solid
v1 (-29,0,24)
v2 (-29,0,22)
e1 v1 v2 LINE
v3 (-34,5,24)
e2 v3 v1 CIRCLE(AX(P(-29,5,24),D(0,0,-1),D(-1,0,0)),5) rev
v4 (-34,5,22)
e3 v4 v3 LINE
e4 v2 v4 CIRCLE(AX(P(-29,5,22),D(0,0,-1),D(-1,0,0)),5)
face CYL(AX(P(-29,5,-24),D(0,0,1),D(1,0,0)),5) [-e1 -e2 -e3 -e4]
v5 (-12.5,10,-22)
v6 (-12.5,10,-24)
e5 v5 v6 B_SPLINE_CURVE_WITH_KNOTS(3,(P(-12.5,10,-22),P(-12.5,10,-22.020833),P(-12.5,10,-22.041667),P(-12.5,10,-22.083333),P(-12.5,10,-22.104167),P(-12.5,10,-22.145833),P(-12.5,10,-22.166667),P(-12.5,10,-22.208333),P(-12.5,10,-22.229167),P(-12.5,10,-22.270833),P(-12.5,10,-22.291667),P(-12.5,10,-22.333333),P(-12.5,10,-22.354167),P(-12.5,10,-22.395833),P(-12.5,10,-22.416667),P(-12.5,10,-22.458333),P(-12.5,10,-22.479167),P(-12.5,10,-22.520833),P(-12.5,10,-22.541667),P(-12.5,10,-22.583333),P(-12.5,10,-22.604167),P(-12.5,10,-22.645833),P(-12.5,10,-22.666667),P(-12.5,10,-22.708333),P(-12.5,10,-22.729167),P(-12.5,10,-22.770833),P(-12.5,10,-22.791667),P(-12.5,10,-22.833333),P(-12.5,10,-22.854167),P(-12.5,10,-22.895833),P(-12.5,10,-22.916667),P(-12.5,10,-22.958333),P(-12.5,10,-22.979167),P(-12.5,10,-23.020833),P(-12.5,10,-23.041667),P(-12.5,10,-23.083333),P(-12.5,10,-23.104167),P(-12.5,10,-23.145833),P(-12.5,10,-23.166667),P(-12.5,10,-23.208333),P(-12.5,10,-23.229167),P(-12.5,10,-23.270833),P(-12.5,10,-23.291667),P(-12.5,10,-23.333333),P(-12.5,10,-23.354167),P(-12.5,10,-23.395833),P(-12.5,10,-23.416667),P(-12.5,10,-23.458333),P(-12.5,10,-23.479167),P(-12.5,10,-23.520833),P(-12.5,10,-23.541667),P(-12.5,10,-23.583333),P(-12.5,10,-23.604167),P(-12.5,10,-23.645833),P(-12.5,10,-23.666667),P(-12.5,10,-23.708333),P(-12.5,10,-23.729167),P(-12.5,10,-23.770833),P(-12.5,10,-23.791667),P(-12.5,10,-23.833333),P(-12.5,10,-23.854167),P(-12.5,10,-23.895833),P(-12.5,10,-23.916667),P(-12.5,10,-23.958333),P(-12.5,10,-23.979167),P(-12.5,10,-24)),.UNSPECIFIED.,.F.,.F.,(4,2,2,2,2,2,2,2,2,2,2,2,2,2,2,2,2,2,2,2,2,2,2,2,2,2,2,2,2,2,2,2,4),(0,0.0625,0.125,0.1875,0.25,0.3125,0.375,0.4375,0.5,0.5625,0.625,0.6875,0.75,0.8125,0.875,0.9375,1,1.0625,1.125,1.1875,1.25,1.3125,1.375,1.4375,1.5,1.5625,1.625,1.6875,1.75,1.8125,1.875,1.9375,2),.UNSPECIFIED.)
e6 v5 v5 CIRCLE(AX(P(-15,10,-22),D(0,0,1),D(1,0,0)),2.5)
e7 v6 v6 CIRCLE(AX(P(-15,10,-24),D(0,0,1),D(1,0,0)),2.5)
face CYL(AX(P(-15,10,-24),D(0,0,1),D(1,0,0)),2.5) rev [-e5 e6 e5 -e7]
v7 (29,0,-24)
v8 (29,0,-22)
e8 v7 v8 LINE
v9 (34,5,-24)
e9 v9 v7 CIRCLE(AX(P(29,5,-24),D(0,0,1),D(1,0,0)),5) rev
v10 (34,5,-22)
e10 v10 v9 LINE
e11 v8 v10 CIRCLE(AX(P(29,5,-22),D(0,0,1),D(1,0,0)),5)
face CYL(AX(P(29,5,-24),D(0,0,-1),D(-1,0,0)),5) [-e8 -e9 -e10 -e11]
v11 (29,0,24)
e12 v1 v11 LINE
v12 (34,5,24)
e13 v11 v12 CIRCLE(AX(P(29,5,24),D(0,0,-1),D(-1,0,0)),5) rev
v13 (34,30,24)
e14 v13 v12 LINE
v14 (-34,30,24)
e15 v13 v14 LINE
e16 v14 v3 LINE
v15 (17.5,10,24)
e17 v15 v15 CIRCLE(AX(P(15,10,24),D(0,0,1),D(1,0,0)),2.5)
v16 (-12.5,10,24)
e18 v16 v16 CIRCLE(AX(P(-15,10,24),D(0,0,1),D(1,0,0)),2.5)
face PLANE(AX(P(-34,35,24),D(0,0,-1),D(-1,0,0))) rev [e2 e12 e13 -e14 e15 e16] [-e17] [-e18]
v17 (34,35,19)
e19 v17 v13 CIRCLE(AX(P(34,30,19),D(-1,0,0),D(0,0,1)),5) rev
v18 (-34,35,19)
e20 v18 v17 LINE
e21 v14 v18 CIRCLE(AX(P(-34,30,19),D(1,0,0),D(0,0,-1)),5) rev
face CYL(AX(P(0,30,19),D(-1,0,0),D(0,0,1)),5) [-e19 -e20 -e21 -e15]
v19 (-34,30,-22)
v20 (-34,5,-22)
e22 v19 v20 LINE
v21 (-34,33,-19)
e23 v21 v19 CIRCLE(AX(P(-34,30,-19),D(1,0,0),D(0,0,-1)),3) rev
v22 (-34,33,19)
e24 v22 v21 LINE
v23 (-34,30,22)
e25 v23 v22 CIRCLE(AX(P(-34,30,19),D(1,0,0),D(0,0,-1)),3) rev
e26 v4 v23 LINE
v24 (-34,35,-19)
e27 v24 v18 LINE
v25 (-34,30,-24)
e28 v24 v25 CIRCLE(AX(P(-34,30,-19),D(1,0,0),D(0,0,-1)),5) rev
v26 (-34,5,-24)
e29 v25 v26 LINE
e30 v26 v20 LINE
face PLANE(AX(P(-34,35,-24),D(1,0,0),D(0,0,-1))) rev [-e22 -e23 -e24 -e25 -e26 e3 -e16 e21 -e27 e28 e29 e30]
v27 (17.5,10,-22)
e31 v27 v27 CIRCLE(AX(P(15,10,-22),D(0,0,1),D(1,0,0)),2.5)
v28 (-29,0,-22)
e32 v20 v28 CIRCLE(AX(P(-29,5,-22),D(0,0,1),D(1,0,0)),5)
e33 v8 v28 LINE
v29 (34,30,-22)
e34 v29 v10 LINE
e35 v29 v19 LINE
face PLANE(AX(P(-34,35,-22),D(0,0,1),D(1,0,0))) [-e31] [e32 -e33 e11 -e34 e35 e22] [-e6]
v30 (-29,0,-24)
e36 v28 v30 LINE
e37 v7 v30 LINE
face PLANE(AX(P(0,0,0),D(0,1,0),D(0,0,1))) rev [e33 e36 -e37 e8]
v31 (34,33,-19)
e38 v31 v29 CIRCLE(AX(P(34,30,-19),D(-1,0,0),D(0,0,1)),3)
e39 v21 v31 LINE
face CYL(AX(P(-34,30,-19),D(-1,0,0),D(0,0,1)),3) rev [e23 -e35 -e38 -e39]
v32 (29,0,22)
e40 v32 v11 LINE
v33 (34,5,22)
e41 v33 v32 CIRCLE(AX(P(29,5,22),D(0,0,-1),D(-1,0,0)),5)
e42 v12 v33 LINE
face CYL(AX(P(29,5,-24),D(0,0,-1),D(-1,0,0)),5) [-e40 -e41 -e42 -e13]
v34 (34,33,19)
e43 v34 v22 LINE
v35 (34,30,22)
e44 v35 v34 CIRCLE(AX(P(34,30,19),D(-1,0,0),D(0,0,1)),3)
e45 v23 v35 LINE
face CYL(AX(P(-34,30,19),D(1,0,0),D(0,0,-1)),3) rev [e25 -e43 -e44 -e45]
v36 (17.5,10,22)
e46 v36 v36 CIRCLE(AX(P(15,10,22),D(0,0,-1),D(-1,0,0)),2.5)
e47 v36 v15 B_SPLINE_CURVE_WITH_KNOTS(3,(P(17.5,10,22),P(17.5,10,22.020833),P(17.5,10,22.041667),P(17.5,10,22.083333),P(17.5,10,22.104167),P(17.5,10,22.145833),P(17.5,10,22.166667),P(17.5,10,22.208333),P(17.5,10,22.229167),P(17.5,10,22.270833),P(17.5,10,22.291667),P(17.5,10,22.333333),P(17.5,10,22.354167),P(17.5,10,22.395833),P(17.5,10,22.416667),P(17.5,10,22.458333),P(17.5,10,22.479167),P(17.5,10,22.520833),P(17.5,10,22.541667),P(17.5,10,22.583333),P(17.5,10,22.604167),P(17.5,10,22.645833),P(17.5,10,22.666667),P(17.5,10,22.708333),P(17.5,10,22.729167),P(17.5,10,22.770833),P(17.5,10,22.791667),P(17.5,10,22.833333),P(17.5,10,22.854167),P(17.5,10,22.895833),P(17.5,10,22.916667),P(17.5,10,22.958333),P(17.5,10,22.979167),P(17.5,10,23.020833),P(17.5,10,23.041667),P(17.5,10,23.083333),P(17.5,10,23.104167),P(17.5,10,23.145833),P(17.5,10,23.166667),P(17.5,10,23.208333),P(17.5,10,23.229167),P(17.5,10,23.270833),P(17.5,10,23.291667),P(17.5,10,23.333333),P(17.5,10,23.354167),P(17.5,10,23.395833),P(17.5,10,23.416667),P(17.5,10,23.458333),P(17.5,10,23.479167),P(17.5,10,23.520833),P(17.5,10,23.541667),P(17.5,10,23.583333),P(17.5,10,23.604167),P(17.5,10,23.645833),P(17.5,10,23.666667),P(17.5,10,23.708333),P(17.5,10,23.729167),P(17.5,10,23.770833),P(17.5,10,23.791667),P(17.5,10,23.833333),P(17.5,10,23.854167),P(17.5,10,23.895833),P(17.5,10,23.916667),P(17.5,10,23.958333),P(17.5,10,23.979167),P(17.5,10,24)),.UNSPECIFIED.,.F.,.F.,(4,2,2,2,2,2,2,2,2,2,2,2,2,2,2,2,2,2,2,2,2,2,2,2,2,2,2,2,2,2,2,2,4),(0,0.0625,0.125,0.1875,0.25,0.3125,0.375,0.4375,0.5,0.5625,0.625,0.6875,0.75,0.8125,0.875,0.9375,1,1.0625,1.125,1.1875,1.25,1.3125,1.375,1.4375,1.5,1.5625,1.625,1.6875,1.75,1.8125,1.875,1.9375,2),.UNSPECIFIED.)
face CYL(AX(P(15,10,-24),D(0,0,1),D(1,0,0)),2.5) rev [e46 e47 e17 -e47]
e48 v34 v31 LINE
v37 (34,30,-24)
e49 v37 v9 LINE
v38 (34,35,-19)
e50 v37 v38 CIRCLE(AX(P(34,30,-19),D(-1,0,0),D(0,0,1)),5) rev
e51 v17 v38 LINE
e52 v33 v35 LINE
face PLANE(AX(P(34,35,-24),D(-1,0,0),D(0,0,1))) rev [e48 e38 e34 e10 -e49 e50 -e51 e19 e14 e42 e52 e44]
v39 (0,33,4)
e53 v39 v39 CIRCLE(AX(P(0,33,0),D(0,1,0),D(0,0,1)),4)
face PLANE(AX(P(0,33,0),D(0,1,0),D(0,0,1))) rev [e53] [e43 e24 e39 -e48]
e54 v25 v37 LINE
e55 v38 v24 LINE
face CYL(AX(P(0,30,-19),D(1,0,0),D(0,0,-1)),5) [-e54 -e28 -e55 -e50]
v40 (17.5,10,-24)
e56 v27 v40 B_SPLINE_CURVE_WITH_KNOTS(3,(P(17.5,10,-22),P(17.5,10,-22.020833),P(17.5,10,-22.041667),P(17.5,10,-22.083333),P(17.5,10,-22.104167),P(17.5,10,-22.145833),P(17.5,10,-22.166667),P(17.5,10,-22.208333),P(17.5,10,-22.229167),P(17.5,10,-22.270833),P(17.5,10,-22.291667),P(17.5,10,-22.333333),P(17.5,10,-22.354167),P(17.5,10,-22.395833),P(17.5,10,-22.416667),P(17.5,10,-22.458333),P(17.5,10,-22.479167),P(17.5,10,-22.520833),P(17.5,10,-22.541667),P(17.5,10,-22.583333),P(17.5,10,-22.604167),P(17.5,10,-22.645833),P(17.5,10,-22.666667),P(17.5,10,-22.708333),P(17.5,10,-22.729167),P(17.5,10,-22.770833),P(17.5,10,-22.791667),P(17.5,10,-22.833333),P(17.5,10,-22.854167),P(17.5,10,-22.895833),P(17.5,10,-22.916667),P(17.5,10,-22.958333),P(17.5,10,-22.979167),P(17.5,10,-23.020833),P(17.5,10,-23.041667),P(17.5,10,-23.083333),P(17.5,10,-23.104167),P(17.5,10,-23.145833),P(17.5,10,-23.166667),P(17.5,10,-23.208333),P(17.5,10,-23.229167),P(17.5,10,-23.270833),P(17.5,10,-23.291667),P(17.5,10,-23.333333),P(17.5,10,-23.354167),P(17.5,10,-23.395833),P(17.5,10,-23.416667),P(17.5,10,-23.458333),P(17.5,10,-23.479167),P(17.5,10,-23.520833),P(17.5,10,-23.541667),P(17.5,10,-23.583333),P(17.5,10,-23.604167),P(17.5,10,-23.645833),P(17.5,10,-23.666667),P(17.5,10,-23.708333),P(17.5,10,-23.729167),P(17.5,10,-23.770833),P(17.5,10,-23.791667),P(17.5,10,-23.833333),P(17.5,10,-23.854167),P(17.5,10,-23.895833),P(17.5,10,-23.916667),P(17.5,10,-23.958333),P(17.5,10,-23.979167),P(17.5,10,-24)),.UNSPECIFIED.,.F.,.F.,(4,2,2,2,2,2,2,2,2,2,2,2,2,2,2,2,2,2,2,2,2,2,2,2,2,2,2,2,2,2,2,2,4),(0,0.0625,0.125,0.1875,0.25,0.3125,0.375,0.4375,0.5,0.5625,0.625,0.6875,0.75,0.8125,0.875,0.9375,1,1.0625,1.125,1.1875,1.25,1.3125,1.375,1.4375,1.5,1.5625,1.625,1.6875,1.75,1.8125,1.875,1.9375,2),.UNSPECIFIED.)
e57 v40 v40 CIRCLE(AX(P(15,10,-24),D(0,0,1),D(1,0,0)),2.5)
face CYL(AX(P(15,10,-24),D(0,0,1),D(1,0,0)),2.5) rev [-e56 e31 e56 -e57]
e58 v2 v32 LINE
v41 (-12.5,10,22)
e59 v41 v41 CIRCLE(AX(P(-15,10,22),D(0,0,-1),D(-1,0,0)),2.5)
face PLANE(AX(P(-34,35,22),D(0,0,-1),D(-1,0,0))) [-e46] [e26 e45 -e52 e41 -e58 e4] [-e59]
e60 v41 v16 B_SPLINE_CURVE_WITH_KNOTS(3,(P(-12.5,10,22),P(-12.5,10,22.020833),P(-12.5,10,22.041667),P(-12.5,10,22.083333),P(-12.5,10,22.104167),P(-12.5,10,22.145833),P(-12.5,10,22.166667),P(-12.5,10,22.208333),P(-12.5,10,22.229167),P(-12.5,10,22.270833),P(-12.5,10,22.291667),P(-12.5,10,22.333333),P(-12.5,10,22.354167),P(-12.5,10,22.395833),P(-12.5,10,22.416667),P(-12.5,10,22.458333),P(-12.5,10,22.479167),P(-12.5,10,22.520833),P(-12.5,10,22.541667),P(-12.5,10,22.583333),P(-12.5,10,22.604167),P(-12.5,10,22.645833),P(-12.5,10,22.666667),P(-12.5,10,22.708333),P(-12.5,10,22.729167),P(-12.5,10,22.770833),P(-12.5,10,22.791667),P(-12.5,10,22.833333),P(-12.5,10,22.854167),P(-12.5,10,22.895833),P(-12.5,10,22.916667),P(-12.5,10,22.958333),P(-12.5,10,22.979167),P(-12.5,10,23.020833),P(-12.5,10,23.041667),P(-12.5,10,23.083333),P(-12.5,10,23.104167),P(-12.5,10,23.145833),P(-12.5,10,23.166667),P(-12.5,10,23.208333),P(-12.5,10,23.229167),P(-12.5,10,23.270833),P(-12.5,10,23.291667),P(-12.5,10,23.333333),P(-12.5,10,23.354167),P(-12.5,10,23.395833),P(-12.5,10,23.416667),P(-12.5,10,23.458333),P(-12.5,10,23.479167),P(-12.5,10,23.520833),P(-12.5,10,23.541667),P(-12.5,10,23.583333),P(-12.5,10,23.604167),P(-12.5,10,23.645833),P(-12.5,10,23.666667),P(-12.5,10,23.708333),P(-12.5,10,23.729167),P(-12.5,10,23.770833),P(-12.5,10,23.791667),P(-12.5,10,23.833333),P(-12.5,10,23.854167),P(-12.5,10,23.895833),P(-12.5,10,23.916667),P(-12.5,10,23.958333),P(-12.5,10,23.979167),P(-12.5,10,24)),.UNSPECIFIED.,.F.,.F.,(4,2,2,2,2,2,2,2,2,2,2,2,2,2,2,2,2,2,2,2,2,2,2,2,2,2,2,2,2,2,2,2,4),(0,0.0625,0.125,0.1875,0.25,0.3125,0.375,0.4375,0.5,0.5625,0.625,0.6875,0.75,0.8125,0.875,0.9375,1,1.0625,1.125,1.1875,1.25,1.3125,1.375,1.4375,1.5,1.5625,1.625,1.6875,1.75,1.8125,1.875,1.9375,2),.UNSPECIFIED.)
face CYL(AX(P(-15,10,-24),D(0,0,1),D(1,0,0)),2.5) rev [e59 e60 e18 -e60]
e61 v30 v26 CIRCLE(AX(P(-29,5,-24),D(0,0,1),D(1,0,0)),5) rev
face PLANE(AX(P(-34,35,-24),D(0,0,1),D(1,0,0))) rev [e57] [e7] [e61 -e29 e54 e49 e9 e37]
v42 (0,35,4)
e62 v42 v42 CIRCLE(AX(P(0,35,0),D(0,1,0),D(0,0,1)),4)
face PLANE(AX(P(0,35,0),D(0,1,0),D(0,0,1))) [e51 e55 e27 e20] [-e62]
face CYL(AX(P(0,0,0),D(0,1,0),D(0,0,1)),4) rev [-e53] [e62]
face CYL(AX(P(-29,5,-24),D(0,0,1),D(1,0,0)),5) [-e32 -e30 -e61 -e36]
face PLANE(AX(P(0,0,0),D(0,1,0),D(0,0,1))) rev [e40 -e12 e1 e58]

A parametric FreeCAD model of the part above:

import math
import FreeCAD as App
import Part
import Sketcher

V = App.Vector


def edges_at(feature, points):
    """Names of the edges that pass closest to the given points."""
    edges = feature.Shape.Edges
    near = lambda p: min(range(len(edges)), key=lambda i: edges[i].distToShape(Part.Vertex(*p))[0])
    return sorted({f"Edge{near(p) + 1}" for p in points})


def faces_at(feature, points):
    """Names of the faces that lie closest to the given points."""
    faces = feature.Shape.Faces
    near = lambda p: min(range(len(faces)), key=lambda i: faces[i].distToShape(Part.Vertex(*p))[0])
    return sorted({f"Face{near(p) + 1}" for p in points})

doc = App.newDocument("Part")
body = doc.addObject("PartDesign::Body", "Body")

sketch1 = body.newObject("Sketcher::SketchObject", "Sketch")
sketch1.AttachmentSupport = (doc.getObject("XZ_Plane"), [""])
sketch1.MapMode = "FlatFace"
sketch1.addGeometry(Part.LineSegment(V(-34, -24, 0), V(-34, 24, 0)), False)
sketch1.addGeometry(Part.LineSegment(V(-34, 24, 0), V(34, 24, 0)), False)
sketch1.addGeometry(Part.LineSegment(V(34, 24, 0), V(34, -24, 0)), False)
sketch1.addGeometry(Part.LineSegment(V(34, -24, 0), V(-34, -24, 0)), False)
sketch1.addConstraint(Sketcher.Constraint("Coincident", 0, 2, 1, 1))
sketch1.addConstraint(Sketcher.Constraint("Coincident", 1, 2, 2, 1))
sketch1.addConstraint(Sketcher.Constraint("Coincident", 2, 2, 3, 1))
sketch1.addConstraint(Sketcher.Constraint("Coincident", 3, 2, 0, 1))
sketch1.addConstraint(Sketcher.Constraint("Vertical", 0))
sketch1.addConstraint(Sketcher.Constraint("Horizontal", 1))
sketch1.addConstraint(Sketcher.Constraint("Vertical", 2))
sketch1.addConstraint(Sketcher.Constraint("Horizontal", 3))
sketch1.addConstraint(Sketcher.Constraint("Symmetric", 0, 2, 2, 2, -1, 1))
sketch1.addConstraint(Sketcher.Constraint("DistanceX", 1, 1, 1, 2, 68.0))
sketch1.addConstraint(Sketcher.Constraint("DistanceY", 0, 1, 0, 2, 48.0))
pad1 = body.newObject("PartDesign::Pad", "Pad")
pad1.Profile = sketch1
pad1.Length = 35
pad1.Reversed = True
doc.recompute()

thickness = body.newObject("PartDesign::Thickness", "Thickness")
thickness.Base = (pad1, faces_at(pad1, [(0, 0, 0)]))
thickness.Value = 2
thickness.Reversed = True
thickness.Join = "Intersection"
doc.recompute()

fillet = body.newObject("PartDesign::Fillet", "Fillet")
fillet.Base = (thickness, edges_at(thickness, [(0, 35, 24), (0, 35, -24)]))
fillet.Radius = 5
doc.recompute()

fillet2 = body.newObject("PartDesign::Fillet", "Fillet001")
fillet2.Base = (fillet, edges_at(fillet, [(0, 33, -22), (0, 33, 22)]))
fillet2.Radius = 3

sketch2 = body.newObject("Sketcher::SketchObject", "Sketch001")
sketch2.AttachmentSupport = (doc.getObject("YZ_Plane"), [""])
sketch2.MapMode = "FlatFace"
sketch2.AttachmentOffset = App.Placement(V(0, 0, -32), App.Rotation())
sketch2.addGeometry(Part.LineSegment(V(0, -22, 0), V(30, -22, 0)), False)
sketch2.addGeometry(Part.ArcOfCircle(Part.Circle(V(30, -19, 0), V(0, 0, 1), 3), math.radians(-90), math.radians(0)), False)
sketch2.addGeometry(Part.LineSegment(V(33, -19, 0), V(33, 19, 0)), False)
sketch2.addGeometry(Part.ArcOfCircle(Part.Circle(V(30, 19, 0), V(0, 0, 1), 3), math.radians(0), math.radians(90)), False)
sketch2.addGeometry(Part.LineSegment(V(30, 22, 0), V(0, 22, 0)), False)
sketch2.addGeometry(Part.LineSegment(V(0, 22, 0), V(0, -22, 0)), False)
sketch2.addConstraint(Sketcher.Constraint("Tangent", 0, 2, 1, 1))
sketch2.addConstraint(Sketcher.Constraint("Tangent", 1, 2, 2, 1))
sketch2.addConstraint(Sketcher.Constraint("Tangent", 2, 2, 3, 1))
sketch2.addConstraint(Sketcher.Constraint("Tangent", 3, 2, 4, 1))
sketch2.addConstraint(Sketcher.Constraint("Coincident", 4, 2, 5, 1))
sketch2.addConstraint(Sketcher.Constraint("Coincident", 5, 2, 0, 1))
sketch2.addConstraint(Sketcher.Constraint("Horizontal", 0))
sketch2.addConstraint(Sketcher.Constraint("Vertical", 2))
sketch2.addConstraint(Sketcher.Constraint("Horizontal", 4))
sketch2.addConstraint(Sketcher.Constraint("Vertical", 5))
sketch2.addConstraint(Sketcher.Constraint("Equal", 1, 3))
sketch2.addConstraint(Sketcher.Constraint("Symmetric", 4, 2, 5, 2, -1, 1))
sketch2.addConstraint(Sketcher.Constraint("Radius", 1, 3.0))
sketch2.addConstraint(Sketcher.Constraint("DistanceX", 0, 1, 0, 2, 30.0))
sketch2.addConstraint(Sketcher.Constraint("DistanceY", 2, 1, 2, 2, 38.0))
pocket1 = body.newObject("PartDesign::Pocket", "Pocket")
pocket1.Profile = sketch2
pocket1.Type = "UpToFirst"

sketch3 = body.newObject("Sketcher::SketchObject", "Sketch002")
sketch3.AttachmentSupport = (doc.getObject("YZ_Plane"), [""])
sketch3.MapMode = "FlatFace"
sketch3.AttachmentOffset = App.Placement(V(0, 0, -32), App.Rotation())
sketch3.addGeometry(Part.LineSegment(V(0, -22, 0), V(30, -22, 0)), False)
sketch3.addGeometry(Part.ArcOfCircle(Part.Circle(V(30, -19, 0), V(0, 0, 1), 3), math.radians(-90), math.radians(0)), False)
sketch3.addGeometry(Part.LineSegment(V(33, -19, 0), V(33, 19, 0)), False)
sketch3.addGeometry(Part.ArcOfCircle(Part.Circle(V(30, 19, 0), V(0, 0, 1), 3), math.radians(0), math.radians(90)), False)
sketch3.addGeometry(Part.LineSegment(V(30, 22, 0), V(0, 22, 0)), False)
sketch3.addGeometry(Part.LineSegment(V(0, 22, 0), V(0, -22, 0)), False)
sketch3.addConstraint(Sketcher.Constraint("Tangent", 0, 2, 1, 1))
sketch3.addConstraint(Sketcher.Constraint("Tangent", 1, 2, 2, 1))
sketch3.addConstraint(Sketcher.Constraint("Tangent", 2, 2, 3, 1))
sketch3.addConstraint(Sketcher.Constraint("Tangent", 3, 2, 4, 1))
sketch3.addConstraint(Sketcher.Constraint("Coincident", 4, 2, 5, 1))
sketch3.addConstraint(Sketcher.Constraint("Coincident", 5, 2, 0, 1))
sketch3.addConstraint(Sketcher.Constraint("Horizontal", 0))
sketch3.addConstraint(Sketcher.Constraint("Vertical", 2))
sketch3.addConstraint(Sketcher.Constraint("Horizontal", 4))
sketch3.addConstraint(Sketcher.Constraint("Vertical", 5))
sketch3.addConstraint(Sketcher.Constraint("Equal", 1, 3))
sketch3.addConstraint(Sketcher.Constraint("Symmetric", 4, 2, 5, 2, -1, 1))
sketch3.addConstraint(Sketcher.Constraint("Radius", 1, 3.0))
sketch3.addConstraint(Sketcher.Constraint("DistanceX", 0, 1, 0, 2, 30.0))
sketch3.addConstraint(Sketcher.Constraint("DistanceY", 2, 1, 2, 2, 38.0))
pocket2 = body.newObject("PartDesign::Pocket", "Pocket001")
pocket2.Profile = sketch3
pocket2.Length = 66
pocket2.Reversed = True

sketch4 = body.newObject("Sketcher::SketchObject", "Sketch003")
sketch4.AttachmentSupport = (doc.getObject("XY_Plane"), [""])
sketch4.MapMode = "FlatFace"
sketch4.addGeometry(Part.Circle(V(-15, 10, 0), V(0, 0, 1), 2.5), False)
sketch4.addGeometry(Part.Circle(V(15, 10, 0), V(0, 0, 1), 2.5), False)
sketch4.addConstraint(Sketcher.Constraint("Equal", 0, 1))
sketch4.addConstraint(Sketcher.Constraint("Symmetric", 0, 3, 1, 3, -2))
sketch4.addConstraint(Sketcher.Constraint("Diameter", 0, 5.0))
sketch4.addConstraint(Sketcher.Constraint("DistanceX", 0, 3, -1, 1, 15.0))
sketch4.addConstraint(Sketcher.Constraint("DistanceY", -1, 1, 0, 3, 10.0))
pocket3 = body.newObject("PartDesign::Pocket", "Pocket002")
pocket3.Profile = sketch4
pocket3.Type = "ThroughAll"
pocket3.Midplane = True
doc.recompute()

fillet3 = body.newObject("PartDesign::Fillet", "Fillet002")
fillet3.Base = (pocket3, edges_at(pocket3, [
    (-34, 0, -23),
    (34, 0, -23),
    (-34, 0, 23),
    (34, 0, 23),
]))
fillet3.Radius = 5

sketch5 = body.newObject("Sketcher::SketchObject", "Sketch004")
sketch5.AttachmentSupport = (doc.getObject("XZ_Plane"), [""])
sketch5.MapMode = "FlatFace"
sketch5.AttachmentOffset = App.Placement(V(0, 0, -35), App.Rotation())
sketch5.addGeometry(Part.Circle(V(0, 0, 0), V(0, 0, 1), 4), False)
sketch5.addConstraint(Sketcher.Constraint("Coincident", 0, 3, -1, 1))
sketch5.addConstraint(Sketcher.Constraint("Diameter", 0, 8.0))
pocket4 = body.newObject("PartDesign::Pocket", "Pocket003")
pocket4.Profile = sketch5
pocket4.Type = "ThroughAll"
pocket4.Reversed = True

doc.recompute()
